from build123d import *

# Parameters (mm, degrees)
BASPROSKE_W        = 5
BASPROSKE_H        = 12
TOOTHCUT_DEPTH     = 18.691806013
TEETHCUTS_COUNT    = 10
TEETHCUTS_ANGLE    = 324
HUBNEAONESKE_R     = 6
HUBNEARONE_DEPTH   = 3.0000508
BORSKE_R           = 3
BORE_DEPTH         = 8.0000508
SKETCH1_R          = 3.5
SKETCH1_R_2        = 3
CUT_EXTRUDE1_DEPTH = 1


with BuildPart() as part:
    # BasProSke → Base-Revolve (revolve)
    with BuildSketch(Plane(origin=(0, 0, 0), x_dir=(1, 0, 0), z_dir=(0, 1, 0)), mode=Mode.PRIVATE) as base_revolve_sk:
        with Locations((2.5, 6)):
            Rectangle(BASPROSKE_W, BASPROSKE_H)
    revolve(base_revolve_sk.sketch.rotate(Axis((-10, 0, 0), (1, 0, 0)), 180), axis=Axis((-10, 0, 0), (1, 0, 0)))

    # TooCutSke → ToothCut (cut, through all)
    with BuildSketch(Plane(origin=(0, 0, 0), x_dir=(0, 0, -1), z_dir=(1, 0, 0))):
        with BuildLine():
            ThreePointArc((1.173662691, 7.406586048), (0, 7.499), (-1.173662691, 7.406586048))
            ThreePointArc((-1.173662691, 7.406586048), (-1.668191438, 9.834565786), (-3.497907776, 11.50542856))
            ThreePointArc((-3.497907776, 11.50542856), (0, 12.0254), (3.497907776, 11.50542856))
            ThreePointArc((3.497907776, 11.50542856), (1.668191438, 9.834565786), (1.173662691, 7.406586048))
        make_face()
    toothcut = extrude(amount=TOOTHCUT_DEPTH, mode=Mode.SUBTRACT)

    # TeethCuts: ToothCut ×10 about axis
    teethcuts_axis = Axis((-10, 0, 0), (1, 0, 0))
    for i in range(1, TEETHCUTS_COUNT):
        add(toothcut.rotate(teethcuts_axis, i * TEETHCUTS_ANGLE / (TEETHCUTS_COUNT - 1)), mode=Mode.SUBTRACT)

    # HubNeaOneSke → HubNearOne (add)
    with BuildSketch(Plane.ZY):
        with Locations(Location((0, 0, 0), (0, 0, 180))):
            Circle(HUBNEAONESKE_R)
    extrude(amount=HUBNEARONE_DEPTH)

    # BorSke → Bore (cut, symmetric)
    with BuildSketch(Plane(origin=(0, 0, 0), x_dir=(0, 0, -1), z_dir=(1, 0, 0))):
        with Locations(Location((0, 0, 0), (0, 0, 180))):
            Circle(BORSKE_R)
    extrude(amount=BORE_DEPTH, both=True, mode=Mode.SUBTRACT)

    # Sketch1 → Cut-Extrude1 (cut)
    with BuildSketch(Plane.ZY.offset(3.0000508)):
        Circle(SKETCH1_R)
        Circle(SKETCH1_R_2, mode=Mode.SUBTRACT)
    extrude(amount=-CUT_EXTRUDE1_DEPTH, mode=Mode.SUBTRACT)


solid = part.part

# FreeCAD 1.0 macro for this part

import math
import FreeCAD as App
import Part
import Sketcher
Q = App.Units.Quantity

doc = App.newDocument("Part")
params = doc.addObject("Spreadsheet::Sheet", "Params")
for row, (alias, value) in enumerate([
    ("sketch1_width", "5 mm"),
    ("sketch1_height", "12 mm"),
    ("revolution_angle", "360 deg"),
    ("sketch2_radius", "4 mm"),
    ("sketch3_diameter", "12 mm"),
    ("pad1_length", "3.000051 mm"),
    ("sketch4_diameter", "6 mm"),
    ("pocket2_length", "16.000102 mm"),
    ("sketch5_diameter", "7 mm"),
    ("sketch5_diameter2", "6 mm"),
    ("pocket3_length", "1 mm"),
], start=1):
    params.set(f"A{row}", alias)
    params.set(f"B{row}", "=" + value)
    params.setAlias(f"B{row}", alias)

body = doc.addObject("PartDesign::Body", "Body")

sketch1 = body.newObject("Sketcher::SketchObject", "Sketch")
sketch1.AttachmentSupport = (doc.getObject("XZ_Plane"), [""])
sketch1.MapMode = "FlatFace"
sketch1.addGeometry(Part.LineSegment(App.Vector(0, -12, 0), App.Vector(0, 0, 0)), False)
sketch1.addGeometry(Part.LineSegment(App.Vector(0, 0, 0), App.Vector(5, 0, 0)), False)
sketch1.addGeometry(Part.LineSegment(App.Vector(5, 0, 0), App.Vector(5, -12, 0)), False)
sketch1.addGeometry(Part.LineSegment(App.Vector(5, -12, 0), App.Vector(0, -12, 0)), False)
sketch1.addConstraint(Sketcher.Constraint("Coincident", 0, 2, 1, 1))
sketch1.addConstraint(Sketcher.Constraint("Coincident", 1, 2, 2, 1))
sketch1.addConstraint(Sketcher.Constraint("Coincident", 2, 2, 3, 1))
sketch1.addConstraint(Sketcher.Constraint("Coincident", 3, 2, 0, 1))
sketch1.addConstraint(Sketcher.Constraint("Vertical", 0))
sketch1.addConstraint(Sketcher.Constraint("Horizontal", 1))
sketch1.addConstraint(Sketcher.Constraint("Vertical", 2))
sketch1.addConstraint(Sketcher.Constraint("Horizontal", 3))
sketch1.addConstraint(Sketcher.Constraint("Coincident", 0, 2, -1, 1))
sketch1.addConstraint(Sketcher.Constraint("DistanceX", 1, 1, 1, 2, Q("5 mm")))
sketch1.addConstraint(Sketcher.Constraint("DistanceY", 0, 1, 0, 2, Q("12 mm")))
sketch1.setExpression("Constraints[9]", "Params.sketch1_width")
sketch1.setExpression("Constraints[10]", "Params.sketch1_height")
revolution = body.newObject("PartDesign::Revolution", "Revolution")
revolution.Profile = sketch1
revolution.ReferenceAxis = (sketch1, ["H_Axis"])
revolution.setExpression("Angle", "Params.revolution_angle")

sketch2 = body.newObject("Sketcher::SketchObject", "Sketch001")
sketch2.AttachmentSupport = (doc.getObject("YZ_Plane"), [""])
sketch2.MapMode = "FlatFace"
sketch2.addGeometry(Part.ArcOfCircle(Part.Circle(App.Vector(0, 0, 0), App.Vector(0, 0, 1), 7.499), math.radians(-9.004337), math.radians(9.004337)), False)
sketch2.addGeometry(Part.ArcOfCircle(Part.Circle(App.Vector(7.861508, -5.147709, 0), App.Vector(0, 0, 1), 4), math.radians(24.358856), math.radians(96.530411)), False)
sketch2.addGeometry(Part.ArcOfCircle(Part.Circle(App.Vector(0, 0, 0), App.Vector(0, 0, 1), 12.0254), math.radians(-16.910446), math.radians(16.910446)), False)
sketch2.addGeometry(Part.ArcOfCircle(Part.Circle(App.Vector(7.861508, 5.147709, 0), App.Vector(0, 0, 1), 4), math.radians(-96.530411), math.radians(-24.358856)), False)
sketch2.addConstraint(Sketcher.Constraint("Coincident", 0, 1, 1, 2))
sketch2.addConstraint(Sketcher.Constraint("Coincident", 1, 1, 2, 1))
sketch2.addConstraint(Sketcher.Constraint("Coincident", 2, 2, 3, 2))
sketch2.addConstraint(Sketcher.Constraint("Coincident", 3, 1, 0, 2))
sketch2.addConstraint(Sketcher.Constraint("Coincident", 0, 3, -1, 1))
sketch2.addConstraint(Sketcher.Constraint("Coincident", 2, 3, -1, 1))
sketch2.addConstraint(Sketcher.Constraint("Equal", 1, 3))
sketch2.addConstraint(Sketcher.Constraint("Symmetric", 1, 3, 3, 3, -1))
sketch2.addConstraint(Sketcher.Constraint("Radius", 1, Q("4 mm")))
sketch2.addConstraint(Sketcher.Constraint("Radius", 0, Q("7.499 mm")))
sketch2.addConstraint(Sketcher.Constraint("Radius", 2, Q("12.0254 mm")))
sketch2.addConstraint(Sketcher.Constraint("DistanceY", 1, 3, 1, 1, Q("1.649801 mm")))
sketch2.addConstraint(Sketcher.Constraint("DistanceX", -1, 1, 1, 3, Q("7.861508 mm")))
sketch2.setExpression("Constraints[8]", "Params.sketch2_radius")
pocket1 = body.newObject("PartDesign::Pocket", "Pocket")
pocket1.Profile = sketch2
pocket1.Type = "ThroughAll"
pocket1.Reversed = True
doc.recompute()

polarpattern = body.newObject("PartDesign::PolarPattern", "PolarPattern")
polarpattern.Originals = [pocket1]
polarpattern.Axis = (doc.getObject("X_Axis"), [""])
polarpattern.Angle = 360
polarpattern.Occurrences = 10
body.Tip = polarpattern

sketch3 = body.newObject("Sketcher::SketchObject", "Sketch002")
sketch3.AttachmentSupport = (doc.getObject("YZ_Plane"), [""])
sketch3.MapMode = "FlatFace"
sketch3.addGeometry(Part.Circle(App.Vector(0, 0, 0), App.Vector(0, 0, 1), 6), False)
sketch3.addConstraint(Sketcher.Constraint("Coincident", 0, 3, -1, 1))
sketch3.addConstraint(Sketcher.Constraint("Diameter", 0, Q("12 mm")))
sketch3.setExpression("Constraints[1]", "Params.sketch3_diameter")
pad1 = body.newObject("PartDesign::Pad", "Pad")
pad1.Profile = sketch3
pad1.setExpression("Length", "Params.pad1_length")
pad1.Reversed = True

sketch4 = body.newObject("Sketcher::SketchObject", "Sketch003")
sketch4.AttachmentSupport = (doc.getObject("YZ_Plane"), [""])
sketch4.MapMode = "FlatFace"
sketch4.addGeometry(Part.Circle(App.Vector(0, 0, 0), App.Vector(0, 0, 1), 3), False)
sketch4.addConstraint(Sketcher.Constraint("Coincident", 0, 3, -1, 1))
sketch4.addConstraint(Sketcher.Constraint("Diameter", 0, Q("6 mm")))
sketch4.setExpression("Constraints[1]", "Params.sketch4_diameter")
pocket2 = body.newObject("PartDesign::Pocket", "Pocket001")
pocket2.Profile = sketch4
pocket2.setExpression("Length", "Params.pocket2_length")
pocket2.Midplane = True

sketch5 = body.newObject("Sketcher::SketchObject", "Sketch004")
sketch5.AttachmentSupport = (doc.getObject("YZ_Plane"), [""])
sketch5.MapMode = "FlatFace"
sketch5.AttachmentOffset = App.Placement(App.Vector(0, 0, -3.000051), App.Rotation())
sketch5.addGeometry(Part.Circle(App.Vector(0, 0, 0), App.Vector(0, 0, 1), 3.5), False)
sketch5.addGeometry(Part.Circle(App.Vector(0, 0, 0), App.Vector(0, 0, 1), 3), False)
sketch5.addConstraint(Sketcher.Constraint("Coincident", 0, 3, -1, 1))
sketch5.addConstraint(Sketcher.Constraint("Coincident", 1, 3, -1, 1))
sketch5.addConstraint(Sketcher.Constraint("Diameter", 0, Q("7 mm")))
sketch5.addConstraint(Sketcher.Constraint("Diameter", 1, Q("6 mm")))
sketch5.setExpression("Constraints[2]", "Params.sketch5_diameter")
sketch5.setExpression("Constraints[3]", "Params.sketch5_diameter2")
pocket3 = body.newObject("PartDesign::Pocket", "Pocket002")
pocket3.Profile = sketch5
pocket3.setExpression("Length", "Params.pocket3_length")
pocket3.Reversed = True

doc.recompute()
